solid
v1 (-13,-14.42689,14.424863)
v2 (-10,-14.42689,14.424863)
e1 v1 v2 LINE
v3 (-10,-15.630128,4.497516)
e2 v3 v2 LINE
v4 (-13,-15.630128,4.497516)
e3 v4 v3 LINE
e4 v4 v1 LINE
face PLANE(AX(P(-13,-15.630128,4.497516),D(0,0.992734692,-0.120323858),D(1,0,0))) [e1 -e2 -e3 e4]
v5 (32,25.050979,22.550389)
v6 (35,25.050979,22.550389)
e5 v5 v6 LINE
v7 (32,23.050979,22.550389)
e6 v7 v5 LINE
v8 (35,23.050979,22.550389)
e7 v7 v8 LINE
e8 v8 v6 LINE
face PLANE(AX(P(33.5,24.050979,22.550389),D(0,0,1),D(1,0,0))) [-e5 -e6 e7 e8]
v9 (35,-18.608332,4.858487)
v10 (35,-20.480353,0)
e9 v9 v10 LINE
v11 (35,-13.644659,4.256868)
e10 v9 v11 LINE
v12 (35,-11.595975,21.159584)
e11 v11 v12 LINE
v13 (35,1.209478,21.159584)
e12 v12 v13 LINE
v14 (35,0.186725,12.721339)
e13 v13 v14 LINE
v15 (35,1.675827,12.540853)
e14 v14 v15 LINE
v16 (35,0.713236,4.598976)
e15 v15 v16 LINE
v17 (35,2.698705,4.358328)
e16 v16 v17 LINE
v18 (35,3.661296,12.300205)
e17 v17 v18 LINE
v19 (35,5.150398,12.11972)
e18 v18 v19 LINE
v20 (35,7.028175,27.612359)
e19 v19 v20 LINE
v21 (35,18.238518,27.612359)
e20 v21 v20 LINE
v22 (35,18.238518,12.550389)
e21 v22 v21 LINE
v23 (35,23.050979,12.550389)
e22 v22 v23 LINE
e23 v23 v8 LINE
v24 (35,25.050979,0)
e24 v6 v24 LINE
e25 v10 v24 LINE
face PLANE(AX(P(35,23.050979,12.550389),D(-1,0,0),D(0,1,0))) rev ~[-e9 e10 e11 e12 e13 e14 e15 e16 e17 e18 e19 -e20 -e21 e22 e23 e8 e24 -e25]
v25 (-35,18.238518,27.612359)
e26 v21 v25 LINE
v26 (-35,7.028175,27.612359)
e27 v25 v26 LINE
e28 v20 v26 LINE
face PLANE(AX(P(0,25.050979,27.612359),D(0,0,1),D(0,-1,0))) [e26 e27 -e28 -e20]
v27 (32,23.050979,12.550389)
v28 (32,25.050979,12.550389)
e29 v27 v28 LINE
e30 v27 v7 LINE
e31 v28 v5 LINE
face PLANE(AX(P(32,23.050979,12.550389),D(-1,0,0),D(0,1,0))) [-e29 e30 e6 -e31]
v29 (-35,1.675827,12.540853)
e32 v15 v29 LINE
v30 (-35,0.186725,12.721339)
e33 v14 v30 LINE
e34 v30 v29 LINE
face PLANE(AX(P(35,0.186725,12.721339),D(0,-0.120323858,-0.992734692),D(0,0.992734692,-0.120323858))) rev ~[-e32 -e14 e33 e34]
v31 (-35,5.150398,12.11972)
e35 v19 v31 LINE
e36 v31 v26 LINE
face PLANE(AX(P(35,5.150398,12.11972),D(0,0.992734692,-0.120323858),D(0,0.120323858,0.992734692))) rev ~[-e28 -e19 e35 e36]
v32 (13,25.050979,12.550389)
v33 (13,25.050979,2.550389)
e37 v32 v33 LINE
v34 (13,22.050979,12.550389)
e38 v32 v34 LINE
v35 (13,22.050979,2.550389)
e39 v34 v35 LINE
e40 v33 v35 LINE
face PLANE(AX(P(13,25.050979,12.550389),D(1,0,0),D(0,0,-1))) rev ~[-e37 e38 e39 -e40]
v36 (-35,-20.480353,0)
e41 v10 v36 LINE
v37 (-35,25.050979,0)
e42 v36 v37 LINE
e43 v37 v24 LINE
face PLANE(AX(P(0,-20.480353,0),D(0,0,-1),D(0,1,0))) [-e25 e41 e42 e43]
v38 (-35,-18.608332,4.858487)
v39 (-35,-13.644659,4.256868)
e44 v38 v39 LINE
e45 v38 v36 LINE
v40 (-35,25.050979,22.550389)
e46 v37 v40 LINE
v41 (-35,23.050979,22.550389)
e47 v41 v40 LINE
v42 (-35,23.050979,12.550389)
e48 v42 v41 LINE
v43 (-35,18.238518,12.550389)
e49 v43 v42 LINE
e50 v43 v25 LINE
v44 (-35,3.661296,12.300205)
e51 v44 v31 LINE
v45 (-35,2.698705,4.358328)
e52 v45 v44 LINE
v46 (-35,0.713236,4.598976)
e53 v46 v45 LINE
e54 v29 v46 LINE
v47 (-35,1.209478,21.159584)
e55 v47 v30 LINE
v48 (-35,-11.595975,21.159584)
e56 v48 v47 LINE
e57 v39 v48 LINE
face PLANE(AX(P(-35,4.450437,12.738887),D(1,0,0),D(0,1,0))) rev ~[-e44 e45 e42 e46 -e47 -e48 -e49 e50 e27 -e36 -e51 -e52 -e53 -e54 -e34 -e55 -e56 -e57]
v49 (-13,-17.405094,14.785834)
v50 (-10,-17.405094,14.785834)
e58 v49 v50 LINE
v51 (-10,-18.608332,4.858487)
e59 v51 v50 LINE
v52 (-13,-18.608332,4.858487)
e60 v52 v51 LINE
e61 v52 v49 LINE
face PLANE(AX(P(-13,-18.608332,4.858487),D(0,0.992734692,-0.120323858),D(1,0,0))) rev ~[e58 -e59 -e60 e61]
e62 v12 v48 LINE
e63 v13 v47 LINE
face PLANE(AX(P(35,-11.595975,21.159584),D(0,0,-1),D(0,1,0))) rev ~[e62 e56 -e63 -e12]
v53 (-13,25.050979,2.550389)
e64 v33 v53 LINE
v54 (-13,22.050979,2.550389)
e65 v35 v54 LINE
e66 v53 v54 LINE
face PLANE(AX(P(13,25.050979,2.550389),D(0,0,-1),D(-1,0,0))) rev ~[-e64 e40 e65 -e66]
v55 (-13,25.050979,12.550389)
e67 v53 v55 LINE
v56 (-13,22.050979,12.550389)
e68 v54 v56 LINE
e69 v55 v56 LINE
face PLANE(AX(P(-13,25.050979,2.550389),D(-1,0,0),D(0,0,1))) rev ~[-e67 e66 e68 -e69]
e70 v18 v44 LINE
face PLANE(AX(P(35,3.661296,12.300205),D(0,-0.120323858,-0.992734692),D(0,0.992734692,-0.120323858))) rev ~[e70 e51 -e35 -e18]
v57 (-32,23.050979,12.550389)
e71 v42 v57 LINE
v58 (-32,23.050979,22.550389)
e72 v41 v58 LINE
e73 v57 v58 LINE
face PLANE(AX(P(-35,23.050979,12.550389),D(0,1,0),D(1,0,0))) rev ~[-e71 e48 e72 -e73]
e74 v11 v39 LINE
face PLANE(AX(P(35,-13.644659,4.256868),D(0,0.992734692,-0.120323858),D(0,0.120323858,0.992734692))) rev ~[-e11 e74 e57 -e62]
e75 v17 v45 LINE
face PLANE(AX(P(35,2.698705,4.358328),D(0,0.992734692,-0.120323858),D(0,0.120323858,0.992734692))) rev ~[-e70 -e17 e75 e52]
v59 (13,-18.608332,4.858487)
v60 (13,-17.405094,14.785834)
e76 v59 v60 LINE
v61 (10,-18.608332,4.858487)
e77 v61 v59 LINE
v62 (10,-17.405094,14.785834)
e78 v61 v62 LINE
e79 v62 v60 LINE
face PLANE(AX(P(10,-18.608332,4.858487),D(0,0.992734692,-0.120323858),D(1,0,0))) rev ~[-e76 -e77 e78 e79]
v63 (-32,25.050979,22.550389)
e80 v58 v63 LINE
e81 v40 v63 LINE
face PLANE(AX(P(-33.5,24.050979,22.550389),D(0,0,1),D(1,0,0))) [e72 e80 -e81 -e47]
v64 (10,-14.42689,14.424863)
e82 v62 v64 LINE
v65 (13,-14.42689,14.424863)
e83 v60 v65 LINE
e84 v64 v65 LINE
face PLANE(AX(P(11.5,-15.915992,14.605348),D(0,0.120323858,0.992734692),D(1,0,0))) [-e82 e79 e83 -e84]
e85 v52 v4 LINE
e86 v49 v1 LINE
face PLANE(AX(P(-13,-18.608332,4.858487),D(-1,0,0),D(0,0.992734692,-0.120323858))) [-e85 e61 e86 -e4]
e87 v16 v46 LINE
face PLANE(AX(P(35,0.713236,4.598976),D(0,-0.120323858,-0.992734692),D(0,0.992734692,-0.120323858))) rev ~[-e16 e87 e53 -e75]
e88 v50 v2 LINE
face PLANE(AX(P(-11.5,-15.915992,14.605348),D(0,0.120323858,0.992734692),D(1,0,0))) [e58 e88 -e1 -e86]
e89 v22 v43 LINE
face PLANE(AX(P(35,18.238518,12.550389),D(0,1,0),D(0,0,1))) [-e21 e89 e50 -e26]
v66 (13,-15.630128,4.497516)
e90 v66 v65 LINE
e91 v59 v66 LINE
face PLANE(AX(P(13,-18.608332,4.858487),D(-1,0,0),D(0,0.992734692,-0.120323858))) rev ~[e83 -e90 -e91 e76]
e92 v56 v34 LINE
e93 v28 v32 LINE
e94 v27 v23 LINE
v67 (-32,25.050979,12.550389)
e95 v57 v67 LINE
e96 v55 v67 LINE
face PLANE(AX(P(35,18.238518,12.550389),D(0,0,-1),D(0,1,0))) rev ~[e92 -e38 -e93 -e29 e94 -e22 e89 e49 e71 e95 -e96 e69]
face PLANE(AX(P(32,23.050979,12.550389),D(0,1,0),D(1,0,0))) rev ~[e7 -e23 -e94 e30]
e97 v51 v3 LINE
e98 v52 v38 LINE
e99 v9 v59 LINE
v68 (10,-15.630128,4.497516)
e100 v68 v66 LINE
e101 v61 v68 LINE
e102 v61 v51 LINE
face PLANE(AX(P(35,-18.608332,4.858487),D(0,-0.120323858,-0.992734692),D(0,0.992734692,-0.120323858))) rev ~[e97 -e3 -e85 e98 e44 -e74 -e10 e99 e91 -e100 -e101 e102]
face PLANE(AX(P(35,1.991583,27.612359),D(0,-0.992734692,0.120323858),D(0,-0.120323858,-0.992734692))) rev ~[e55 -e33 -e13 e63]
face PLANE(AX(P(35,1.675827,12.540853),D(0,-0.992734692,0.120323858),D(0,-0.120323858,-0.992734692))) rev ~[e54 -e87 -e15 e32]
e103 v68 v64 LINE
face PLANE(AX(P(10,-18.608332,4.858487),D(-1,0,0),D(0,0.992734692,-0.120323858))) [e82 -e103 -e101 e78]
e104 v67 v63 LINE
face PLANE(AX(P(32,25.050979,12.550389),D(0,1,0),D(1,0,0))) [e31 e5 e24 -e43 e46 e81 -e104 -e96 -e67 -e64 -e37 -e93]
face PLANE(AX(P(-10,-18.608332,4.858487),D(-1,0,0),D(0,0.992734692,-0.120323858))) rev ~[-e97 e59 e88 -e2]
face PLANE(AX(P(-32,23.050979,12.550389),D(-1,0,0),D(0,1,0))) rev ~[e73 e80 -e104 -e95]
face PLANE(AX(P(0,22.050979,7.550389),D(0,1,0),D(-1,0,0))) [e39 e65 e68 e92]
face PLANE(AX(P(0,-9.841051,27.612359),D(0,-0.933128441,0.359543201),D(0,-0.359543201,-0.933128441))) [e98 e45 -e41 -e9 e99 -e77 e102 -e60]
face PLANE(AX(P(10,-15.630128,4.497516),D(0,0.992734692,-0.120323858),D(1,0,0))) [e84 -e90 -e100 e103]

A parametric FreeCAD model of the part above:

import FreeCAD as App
import Part
import Sketcher
from FreeCAD import Vector
Q = App.Units.Quantity

doc = App.newDocument("Part")
params = doc.addObject("Spreadsheet::Sheet", "Params")
for row, (alias, value) in enumerate([
    ("pad1_length", "70 mm"),
    ("sketch2_length", "15 mm"),
    ("sketch2_length2", "8 mm"),
    ("sketch2_length3", "2 mm"),
    ("sketch2_length4", "8 mm"),
    ("sketch2_length5", "5 mm"),
    ("sketch3_length", "6.5 mm"),
    ("sketch4_width", "3 mm"),
    ("pad2_length", "10 mm"),
    ("sketch5_width", "3 mm"),
    ("sketch5_height", "2 mm"),
    ("pad3_length", "10 mm"),
    ("sketch6_width", "26 mm"),
    ("sketch6_height", "10 mm"),
    ("pocket3_length", "3 mm"),
], start=1):
    params.set(f"A{row}", alias)
    params.set(f"B{row}", "=" + value)
    params.setAlias(f"B{row}", alias)

body = doc.addObject("PartDesign::Body", "Body")

# Sketch on YZ plane
sketch1 = body.newObject("Sketcher::SketchObject", "Sketch")
sketch1.AttachmentSupport = (doc.getObject("YZ_Plane"), [""])
sketch1.MapMode = "FlatFace"
sketch1.addGeometry(Part.LineSegment(Vector(-20, 0, 0), Vector(25, 0, 0)), False)
sketch1.addGeometry(Part.LineSegment(Vector(25, 0, 0), Vector(25, 28, 0)), False)
sketch1.addGeometry(Part.LineSegment(Vector(25, 28, 0), Vector(-10, 28, 0)), False)
sketch1.addGeometry(Part.LineSegment(Vector(-10, 28, 0), Vector(-20, 0, 0)), False)
sketch1.addConstraint(Sketcher.Constraint("Coincident", 0, 2, 1, 1))
sketch1.addConstraint(Sketcher.Constraint("Coincident", 1, 2, 2, 1))
sketch1.addConstraint(Sketcher.Constraint("Coincident", 2, 2, 3, 1))
sketch1.addConstraint(Sketcher.Constraint("Coincident", 3, 2, 0, 1))
sketch1.addConstraint(Sketcher.Constraint("Horizontal", 0))
sketch1.addConstraint(Sketcher.Constraint("Vertical", 1))
sketch1.addConstraint(Sketcher.Constraint("Horizontal", 2))
sketch1.addConstraint(Sketcher.Constraint("PointOnObject", 0, 2, -1))
sketch1.addConstraint(Sketcher.Constraint("DistanceX", 2, 2, 2, 1, Q("34.89203 mm")))
sketch1.addConstraint(Sketcher.Constraint("DistanceY", 1, 1, 1, 2, Q("27.612359 mm")))
sketch1.addConstraint(Sketcher.Constraint("DistanceX", 0, 1, 0, 2, Q("45.531332 mm")))
sketch1.addConstraint(Sketcher.Constraint("DistanceX", -1, 1, 0, 2, Q("25.050979 mm")))
pad1 = body.newObject("PartDesign::Pad", "Pad")
pad1.Profile = sketch1
pad1.setExpression("Length", "Params.pad1_length")
pad1.Midplane = True

# Sketch on YZ plane
sketch2 = body.newObject("Sketcher::SketchObject", "Sketch001")
sketch2.AttachmentSupport = (doc.getObject("YZ_Plane"), [""])
sketch2.MapMode = "FlatFace"
sketch2.AttachmentOffset = App.Placement(Vector(0, 0, 35), App.Rotation())
sketch2.addGeometry(Part.LineSegment(Vector(7.028175, 27.612359, 0), Vector(1.991583, 27.612359, 0)), False)
sketch2.addGeometry(Part.LineSegment(Vector(1.991583, 27.612359, 0), Vector(0.186725, 12.721339, 0)), False)
sketch2.addGeometry(Part.LineSegment(Vector(0.186725, 12.721339, 0), Vector(1.675827, 12.540853, 0)), False)
sketch2.addGeometry(Part.LineSegment(Vector(1.675827, 12.540853, 0), Vector(0.713236, 4.598976, 0)), False)
sketch2.addGeometry(Part.LineSegment(Vector(0.713236, 4.598976, 0), Vector(2.698705, 4.358328, 0)), False)
sketch2.addGeometry(Part.LineSegment(Vector(2.698705, 4.358328, 0), Vector(3.661296, 12.300205, 0)), False)
sketch2.addGeometry(Part.LineSegment(Vector(3.661296, 12.300205, 0), Vector(5.150398, 12.11972, 0)), False)
sketch2.addGeometry(Part.LineSegment(Vector(5.150398, 12.11972, 0), Vector(7.028175, 27.612359, 0)), False)
sketch2.addGeometry(Part.LineSegment(Vector(-13.644659, 4.256868, 0), Vector(-11.260321, 23.928904, 0)), False)
sketch2.addGeometry(Part.LineSegment(Vector(-11.260321, 23.928904, 0), Vector(-18.608332, 4.858487, 0)), False)
sketch2.addGeometry(Part.LineSegment(Vector(-18.608332, 4.858487, 0), Vector(-13.644659, 4.256868, 0)), False)
sketch2.addGeometry(Part.LineSegment(Vector(18.238518, 27.612359, 0), Vector(18.238518, 12.550389, 0)), False)
sketch2.addGeometry(Part.LineSegment(Vector(18.238518, 12.550389, 0), Vector(25.050979, 12.550389, 0)), False)
sketch2.addGeometry(Part.LineSegment(Vector(25.050979, 12.550389, 0), Vector(25.050979, 27.612359, 0)), False)
sketch2.addGeometry(Part.LineSegment(Vector(25.050979, 27.612359, 0), Vector(18.238518, 27.612359, 0)), False)
sketch2.addConstraint(Sketcher.Constraint("Coincident", 0, 2, 1, 1))
sketch2.addConstraint(Sketcher.Constraint("Coincident", 1, 2, 2, 1))
sketch2.addConstraint(Sketcher.Constraint("Coincident", 2, 2, 3, 1))
sketch2.addConstraint(Sketcher.Constraint("Coincident", 3, 2, 4, 1))
sketch2.addConstraint(Sketcher.Constraint("Coincident", 4, 2, 5, 1))
sketch2.addConstraint(Sketcher.Constraint("Coincident", 5, 2, 6, 1))
sketch2.addConstraint(Sketcher.Constraint("Coincident", 6, 2, 7, 1))
sketch2.addConstraint(Sketcher.Constraint("Coincident", 7, 2, 0, 1))
sketch2.addConstraint(Sketcher.Constraint("Coincident", 8, 2, 9, 1))
sketch2.addConstraint(Sketcher.Constraint("Coincident", 9, 2, 10, 1))
sketch2.addConstraint(Sketcher.Constraint("Coincident", 10, 2, 8, 1))
sketch2.addConstraint(Sketcher.Constraint("Coincident", 11, 2, 12, 1))
sketch2.addConstraint(Sketcher.Constraint("Coincident", 12, 2, 13, 1))
sketch2.addConstraint(Sketcher.Constraint("Coincident", 13, 2, 14, 1))
sketch2.addConstraint(Sketcher.Constraint("Coincident", 14, 2, 11, 1))
sketch2.addConstraint(Sketcher.Constraint("Horizontal", 0))
sketch2.addConstraint(Sketcher.Constraint("Vertical", 11))
sketch2.addConstraint(Sketcher.Constraint("Horizontal", 12))
sketch2.addConstraint(Sketcher.Constraint("Vertical", 13))
sketch2.addConstraint(Sketcher.Constraint("Horizontal", 14))
sketch2.addConstraint(Sketcher.Constraint("Distance", 1, Q("15 mm")))
sketch2.addConstraint(Sketcher.Constraint("Distance", 3, Q("8 mm")))
sketch2.addConstraint(Sketcher.Constraint("Distance", 4, Q("2 mm")))
sketch2.addConstraint(Sketcher.Constraint("Distance", 5, Q("8 mm")))
sketch2.addConstraint(Sketcher.Constraint("Distance", 10, Q("5 mm")))
sketch2.addConstraint(Sketcher.Constraint("Distance", 2, Q("1.5 mm")))
sketch2.addConstraint(Sketcher.Constraint("Distance", 6, Q("1.5 mm")))
sketch2.addConstraint(Sketcher.Constraint("DistanceX", 12, 1, 12, 2, Q("6.812461 mm")))
sketch2.addConstraint(Sketcher.Constraint("DistanceY", 11, 2, 11, 1, Q("15.06197 mm")))
sketch2.addConstraint(Sketcher.Constraint("DistanceX", -1, 1, 6, 2, Q("5.150398 mm")))
sketch2.addConstraint(Sketcher.Constraint("DistanceY", 5, 2, 8, 2, Q("11.628699 mm")))
sketch2.addConstraint(Sketcher.Constraint("DistanceX", 0, 2, 0, 1, Q("5.036592 mm")))
sketch2.addConstraint(Sketcher.Constraint("DistanceY", -1, 1, 0, 2, Q("27.612359 mm")))
sketch2.addConstraint(Sketcher.Constraint("DistanceY", -1, 1, 1, 2, Q("12.721339 mm")))
sketch2.addConstraint(Sketcher.Constraint("DistanceY", -1, 1, 6, 2, Q("12.11972 mm")))
sketch2.addConstraint(Sketcher.Constraint("DistanceX", 8, 2, -1, 1, Q("11.260321 mm")))
sketch2.addConstraint(Sketcher.Constraint("DistanceX", 10, 2, -1, 1, Q("13.644659 mm")))
sketch2.addConstraint(Sketcher.Constraint("DistanceX", -1, 1, 11, 2, Q("18.238518 mm")))
sketch2.addConstraint(Sketcher.Constraint("DistanceY", -1, 1, 11, 2, Q("12.550389 mm")))
sketch2.addConstraint(Sketcher.Constraint("DistanceX", 3, 2, 2, 2, Q("0.962591 mm")))
sketch2.addConstraint(Sketcher.Constraint("DistanceX", 1, 2, 3, 2, Q("0.526511 mm")))
sketch2.addConstraint(Sketcher.Constraint("DistanceX", 3, 2, 4, 2, Q("1.985469 mm")))
sketch2.addConstraint(Sketcher.Constraint("DistanceX", 2, 2, 5, 2, Q("1.985469 mm")))
sketch2.addConstraint(Sketcher.Constraint("DistanceX", 9, 2, 3, 2, Q("19.321568 mm")))
sketch2.addConstraint(Sketcher.Constraint("DistanceY", 3, 2, 9, 2, Q("0.259512 mm")))
sketch2.setExpression("Constraints[20]", "Params.sketch2_length")
sketch2.setExpression("Constraints[21]", "Params.sketch2_length2")
sketch2.setExpression("Constraints[22]", "Params.sketch2_length3")
sketch2.setExpression("Constraints[23]", "Params.sketch2_length4")
sketch2.setExpression("Constraints[24]", "Params.sketch2_length5")
pocket1 = body.newObject("PartDesign::Pocket", "Pocket")
pocket1.Profile = sketch2
pocket1.Type = "ThroughAll"

# Sketch on YZ plane
sketch3 = body.newObject("Sketcher::SketchObject", "Sketch002")
sketch3.AttachmentSupport = (doc.getObject("YZ_Plane"), [""])
sketch3.MapMode = "FlatFace"
sketch3.AttachmentOffset = App.Placement(Vector(0, 0, 35), App.Rotation())
sketch3.addGeometry(Part.LineSegment(Vector(-11.3, 23.9, 0), Vector(-11.6, 21.2, 0)), False)
sketch3.addGeometry(Part.LineSegment(Vector(-11.6, 21.2, 0), Vector(1.2, 21.2, 0)), False)
sketch3.addGeometry(Part.LineSegment(Vector(1.2, 21.2, 0), Vector(2, 27.6, 0)), False)
sketch3.addGeometry(Part.LineSegment(Vector(2, 27.6, 0), Vector(-9.8, 27.6, 0)), False)
sketch3.addGeometry(Part.LineSegment(Vector(-9.8, 27.6, 0), Vector(-11.3, 23.9, 0)), False)
sketch3.addConstraint(Sketcher.Constraint("Coincident", 0, 2, 1, 1))
sketch3.addConstraint(Sketcher.Constraint("Coincident", 1, 2, 2, 1))
sketch3.addConstraint(Sketcher.Constraint("Coincident", 2, 2, 3, 1))
sketch3.addConstraint(Sketcher.Constraint("Coincident", 3, 2, 4, 1))
sketch3.addConstraint(Sketcher.Constraint("Coincident", 4, 2, 0, 1))
sketch3.addConstraint(Sketcher.Constraint("Horizontal", 1))
sketch3.addConstraint(Sketcher.Constraint("Horizontal", 3))
sketch3.addConstraint(Sketcher.Constraint("Parallel", 0, 2))
sketch3.addConstraint(Sketcher.Constraint("Distance", 2, Q("6.5 mm")))
sketch3.addConstraint(Sketcher.Constraint("DistanceX", 4, 2, 1, 2, Q("12.469798 mm")))
sketch3.addConstraint(Sketcher.Constraint("DistanceX", 1, 1, 1, 2, Q("12.805452 mm")))
sketch3.addConstraint(Sketcher.Constraint("DistanceX", 3, 2, 3, 1, Q("11.832633 mm")))
sketch3.addConstraint(Sketcher.Constraint("DistanceY", -1, 1, 2, 2, Q("27.612359 mm")))
sketch3.addConstraint(Sketcher.Constraint("DistanceX", 3, 2, -1, 1, Q("9.841051 mm")))
sketch3.addConstraint(Sketcher.Constraint("DistanceX", 4, 2, -1, 1, Q("11.260321 mm")))
sketch3.setExpression("Constraints[8]", "Params.sketch3_length")
pocket2 = body.newObject("PartDesign::Pocket", "Pocket001")
pocket2.Profile = sketch3
pocket2.Type = "ThroughAll"

# Sketch on an angled plane
sketch4 = body.newObject("Sketcher::SketchObject", "Sketch003")
sketch4.Placement = App.Placement(Vector(0, 0.310936, 2.565388), App.Rotation(Vector(1, 0, 0), Vector(0, 0.992734692, -0.120323858), Vector(0, 0.120323858, 0.992734692), "ZXY"))
sketch4.addGeometry(Part.LineSegment(Vector(10, -16.1, 0), Vector(10, -19.1, 0)), False)
sketch4.addGeometry(Part.LineSegment(Vector(10, -19.1, 0), Vector(13, -19.1, 0)), False)
sketch4.addGeometry(Part.LineSegment(Vector(13, -19.1, 0), Vector(13, -16.1, 0)), False)
sketch4.addGeometry(Part.LineSegment(Vector(13, -16.1, 0), Vector(10, -16.1, 0)), False)
sketch4.addGeometry(Part.LineSegment(Vector(-13, -16.1, 0), Vector(-13, -19.1, 0)), False)
sketch4.addGeometry(Part.LineSegment(Vector(-13, -19.1, 0), Vector(-10, -19.1, 0)), False)
sketch4.addGeometry(Part.LineSegment(Vector(-10, -19.1, 0), Vector(-10, -16.1, 0)), False)
sketch4.addGeometry(Part.LineSegment(Vector(-10, -16.1, 0), Vector(-13, -16.1, 0)), False)
sketch4.addConstraint(Sketcher.Constraint("Coincident", 0, 2, 1, 1))
sketch4.addConstraint(Sketcher.Constraint("Coincident", 1, 2, 2, 1))
sketch4.addConstraint(Sketcher.Constraint("Coincident", 2, 2, 3, 1))
sketch4.addConstraint(Sketcher.Constraint("Coincident", 3, 2, 0, 1))
sketch4.addConstraint(Sketcher.Constraint("Coincident", 4, 2, 5, 1))
sketch4.addConstraint(Sketcher.Constraint("Coincident", 5, 2, 6, 1))
sketch4.addConstraint(Sketcher.Constraint("Coincident", 6, 2, 7, 1))
sketch4.addConstraint(Sketcher.Constraint("Coincident", 7, 2, 4, 1))
sketch4.addConstraint(Sketcher.Constraint("Vertical", 0))
sketch4.addConstraint(Sketcher.Constraint("Horizontal", 1))
sketch4.addConstraint(Sketcher.Constraint("Vertical", 2))
sketch4.addConstraint(Sketcher.Constraint("Horizontal", 3))
sketch4.addConstraint(Sketcher.Constraint("Vertical", 4))
sketch4.addConstraint(Sketcher.Constraint("Horizontal", 5))
sketch4.addConstraint(Sketcher.Constraint("Vertical", 6))
sketch4.addConstraint(Sketcher.Constraint("Horizontal", 7))
sketch4.addConstraint(Sketcher.Constraint("Symmetric", 1, 2, 4, 2, -2))
sketch4.addConstraint(Sketcher.Constraint("Symmetric", 3, 2, 6, 2, -2))
sketch4.addConstraint(Sketcher.Constraint("Equal", 7, 0))
sketch4.addConstraint(Sketcher.Constraint("DistanceX", 1, 1, 1, 2, Q("3 mm")))
sketch4.addConstraint(Sketcher.Constraint("DistanceX", -1, 1, 0, 2, Q("10 mm")))
sketch4.addConstraint(Sketcher.Constraint("DistanceY", 0, 2, -1, 1, Q("19.057729 mm")))
sketch4.setExpression("Constraints[19]", "Params.sketch4_width")
pad2 = body.newObject("PartDesign::Pad", "Pad001")
pad2.Profile = sketch4
pad2.setExpression("Length", "Params.pad2_length")

# Sketch on XY plane
sketch5 = body.newObject("Sketcher::SketchObject", "Sketch004")
sketch5.AttachmentSupport = (doc.getObject("XY_Plane"), [""])
sketch5.MapMode = "FlatFace"
sketch5.AttachmentOffset = App.Placement(Vector(0, 0, 12.550389), App.Rotation())
sketch5.addGeometry(Part.LineSegment(Vector(32, 25.1, 0), Vector(32, 23.1, 0)), False)
sketch5.addGeometry(Part.LineSegment(Vector(32, 23.1, 0), Vector(35, 23.1, 0)), False)
sketch5.addGeometry(Part.LineSegment(Vector(35, 23.1, 0), Vector(35, 25.1, 0)), False)
sketch5.addGeometry(Part.LineSegment(Vector(35, 25.1, 0), Vector(32, 25.1, 0)), False)
sketch5.addGeometry(Part.LineSegment(Vector(-35, 25.1, 0), Vector(-35, 23.1, 0)), False)
sketch5.addGeometry(Part.LineSegment(Vector(-35, 23.1, 0), Vector(-32, 23.1, 0)), False)
sketch5.addGeometry(Part.LineSegment(Vector(-32, 23.1, 0), Vector(-32, 25.1, 0)), False)
sketch5.addGeometry(Part.LineSegment(Vector(-32, 25.1, 0), Vector(-35, 25.1, 0)), False)
sketch5.addConstraint(Sketcher.Constraint("Coincident", 0, 2, 1, 1))
sketch5.addConstraint(Sketcher.Constraint("Coincident", 1, 2, 2, 1))
sketch5.addConstraint(Sketcher.Constraint("Coincident", 2, 2, 3, 1))
sketch5.addConstraint(Sketcher.Constraint("Coincident", 3, 2, 0, 1))
sketch5.addConstraint(Sketcher.Constraint("Coincident", 4, 2, 5, 1))
sketch5.addConstraint(Sketcher.Constraint("Coincident", 5, 2, 6, 1))
sketch5.addConstraint(Sketcher.Constraint("Coincident", 6, 2, 7, 1))
sketch5.addConstraint(Sketcher.Constraint("Coincident", 7, 2, 4, 1))
sketch5.addConstraint(Sketcher.Constraint("Vertical", 0))
sketch5.addConstraint(Sketcher.Constraint("Horizontal", 1))
sketch5.addConstraint(Sketcher.Constraint("Vertical", 2))
sketch5.addConstraint(Sketcher.Constraint("Horizontal", 3))
sketch5.addConstraint(Sketcher.Constraint("Vertical", 4))
sketch5.addConstraint(Sketcher.Constraint("Horizontal", 5))
sketch5.addConstraint(Sketcher.Constraint("Vertical", 6))
sketch5.addConstraint(Sketcher.Constraint("Horizontal", 7))
sketch5.addConstraint(Sketcher.Constraint("Symmetric", 1, 2, 4, 2, -2))
sketch5.addConstraint(Sketcher.Constraint("Symmetric", 3, 2, 6, 2, -2))
sketch5.addConstraint(Sketcher.Constraint("DistanceX", 1, 1, 1, 2, Q("3 mm")))
sketch5.addConstraint(Sketcher.Constraint("DistanceY", 0, 2, 0, 1, Q("2 mm")))
sketch5.addConstraint(Sketcher.Constraint("DistanceX", -1, 1, 0, 2, Q("32 mm")))
sketch5.addConstraint(Sketcher.Constraint("DistanceY", -1, 1, 0, 2, Q("23.050979 mm")))
sketch5.setExpression("Constraints[18]", "Params.sketch5_width")
sketch5.setExpression("Constraints[19]", "Params.sketch5_height")
pad3 = body.newObject("PartDesign::Pad", "Pad002")
pad3.Profile = sketch5
pad3.setExpression("Length", "Params.pad3_length")

# Sketch on XZ plane
sketch6 = body.newObject("Sketcher::SketchObject", "Sketch005")
sketch6.AttachmentSupport = (doc.getObject("XZ_Plane"), [""])
sketch6.MapMode = "FlatFace"
sketch6.AttachmentOffset = App.Placement(Vector(0, 0, -25.050979), App.Rotation())
sketch6.addGeometry(Part.LineSegment(Vector(-13, 13, 0), Vector(13, 13, 0)), False)
sketch6.addGeometry(Part.LineSegment(Vector(13, 13, 0), Vector(13, 3, 0)), False)
sketch6.addGeometry(Part.LineSegment(Vector(13, 3, 0), Vector(-13, 3, 0)), False)
sketch6.addGeometry(Part.LineSegment(Vector(-13, 3, 0), Vector(-13, 13, 0)), False)
sketch6.addConstraint(Sketcher.Constraint("Coincident", 0, 2, 1, 1))
sketch6.addConstraint(Sketcher.Constraint("Coincident", 1, 2, 2, 1))
sketch6.addConstraint(Sketcher.Constraint("Coincident", 2, 2, 3, 1))
sketch6.addConstraint(Sketcher.Constraint("Coincident", 3, 2, 0, 1))
sketch6.addConstraint(Sketcher.Constraint("Horizontal", 0))
sketch6.addConstraint(Sketcher.Constraint("Vertical", 1))
sketch6.addConstraint(Sketcher.Constraint("Horizontal", 2))
sketch6.addConstraint(Sketcher.Constraint("Vertical", 3))
sketch6.addConstraint(Sketcher.Constraint("DistanceX", 0, 1, 0, 2, Q("26 mm")))
sketch6.addConstraint(Sketcher.Constraint("DistanceY", 1, 2, 1, 1, Q("10 mm")))
sketch6.addConstraint(Sketcher.Constraint("DistanceX", -1, 1, 0, 2, Q("13 mm")))
sketch6.addConstraint(Sketcher.Constraint("DistanceY", -1, 1, 0, 2, Q("12.550389 mm")))
sketch6.setExpression("Constraints[8]", "Params.sketch6_width")
sketch6.setExpression("Constraints[9]", "Params.sketch6_height")
pocket3 = body.newObject("PartDesign::Pocket", "Pocket002")
pocket3.Profile = sketch6
pocket3.setExpression("Length", "Params.pocket3_length")
pocket3.Reversed = True

doc.recompute()
